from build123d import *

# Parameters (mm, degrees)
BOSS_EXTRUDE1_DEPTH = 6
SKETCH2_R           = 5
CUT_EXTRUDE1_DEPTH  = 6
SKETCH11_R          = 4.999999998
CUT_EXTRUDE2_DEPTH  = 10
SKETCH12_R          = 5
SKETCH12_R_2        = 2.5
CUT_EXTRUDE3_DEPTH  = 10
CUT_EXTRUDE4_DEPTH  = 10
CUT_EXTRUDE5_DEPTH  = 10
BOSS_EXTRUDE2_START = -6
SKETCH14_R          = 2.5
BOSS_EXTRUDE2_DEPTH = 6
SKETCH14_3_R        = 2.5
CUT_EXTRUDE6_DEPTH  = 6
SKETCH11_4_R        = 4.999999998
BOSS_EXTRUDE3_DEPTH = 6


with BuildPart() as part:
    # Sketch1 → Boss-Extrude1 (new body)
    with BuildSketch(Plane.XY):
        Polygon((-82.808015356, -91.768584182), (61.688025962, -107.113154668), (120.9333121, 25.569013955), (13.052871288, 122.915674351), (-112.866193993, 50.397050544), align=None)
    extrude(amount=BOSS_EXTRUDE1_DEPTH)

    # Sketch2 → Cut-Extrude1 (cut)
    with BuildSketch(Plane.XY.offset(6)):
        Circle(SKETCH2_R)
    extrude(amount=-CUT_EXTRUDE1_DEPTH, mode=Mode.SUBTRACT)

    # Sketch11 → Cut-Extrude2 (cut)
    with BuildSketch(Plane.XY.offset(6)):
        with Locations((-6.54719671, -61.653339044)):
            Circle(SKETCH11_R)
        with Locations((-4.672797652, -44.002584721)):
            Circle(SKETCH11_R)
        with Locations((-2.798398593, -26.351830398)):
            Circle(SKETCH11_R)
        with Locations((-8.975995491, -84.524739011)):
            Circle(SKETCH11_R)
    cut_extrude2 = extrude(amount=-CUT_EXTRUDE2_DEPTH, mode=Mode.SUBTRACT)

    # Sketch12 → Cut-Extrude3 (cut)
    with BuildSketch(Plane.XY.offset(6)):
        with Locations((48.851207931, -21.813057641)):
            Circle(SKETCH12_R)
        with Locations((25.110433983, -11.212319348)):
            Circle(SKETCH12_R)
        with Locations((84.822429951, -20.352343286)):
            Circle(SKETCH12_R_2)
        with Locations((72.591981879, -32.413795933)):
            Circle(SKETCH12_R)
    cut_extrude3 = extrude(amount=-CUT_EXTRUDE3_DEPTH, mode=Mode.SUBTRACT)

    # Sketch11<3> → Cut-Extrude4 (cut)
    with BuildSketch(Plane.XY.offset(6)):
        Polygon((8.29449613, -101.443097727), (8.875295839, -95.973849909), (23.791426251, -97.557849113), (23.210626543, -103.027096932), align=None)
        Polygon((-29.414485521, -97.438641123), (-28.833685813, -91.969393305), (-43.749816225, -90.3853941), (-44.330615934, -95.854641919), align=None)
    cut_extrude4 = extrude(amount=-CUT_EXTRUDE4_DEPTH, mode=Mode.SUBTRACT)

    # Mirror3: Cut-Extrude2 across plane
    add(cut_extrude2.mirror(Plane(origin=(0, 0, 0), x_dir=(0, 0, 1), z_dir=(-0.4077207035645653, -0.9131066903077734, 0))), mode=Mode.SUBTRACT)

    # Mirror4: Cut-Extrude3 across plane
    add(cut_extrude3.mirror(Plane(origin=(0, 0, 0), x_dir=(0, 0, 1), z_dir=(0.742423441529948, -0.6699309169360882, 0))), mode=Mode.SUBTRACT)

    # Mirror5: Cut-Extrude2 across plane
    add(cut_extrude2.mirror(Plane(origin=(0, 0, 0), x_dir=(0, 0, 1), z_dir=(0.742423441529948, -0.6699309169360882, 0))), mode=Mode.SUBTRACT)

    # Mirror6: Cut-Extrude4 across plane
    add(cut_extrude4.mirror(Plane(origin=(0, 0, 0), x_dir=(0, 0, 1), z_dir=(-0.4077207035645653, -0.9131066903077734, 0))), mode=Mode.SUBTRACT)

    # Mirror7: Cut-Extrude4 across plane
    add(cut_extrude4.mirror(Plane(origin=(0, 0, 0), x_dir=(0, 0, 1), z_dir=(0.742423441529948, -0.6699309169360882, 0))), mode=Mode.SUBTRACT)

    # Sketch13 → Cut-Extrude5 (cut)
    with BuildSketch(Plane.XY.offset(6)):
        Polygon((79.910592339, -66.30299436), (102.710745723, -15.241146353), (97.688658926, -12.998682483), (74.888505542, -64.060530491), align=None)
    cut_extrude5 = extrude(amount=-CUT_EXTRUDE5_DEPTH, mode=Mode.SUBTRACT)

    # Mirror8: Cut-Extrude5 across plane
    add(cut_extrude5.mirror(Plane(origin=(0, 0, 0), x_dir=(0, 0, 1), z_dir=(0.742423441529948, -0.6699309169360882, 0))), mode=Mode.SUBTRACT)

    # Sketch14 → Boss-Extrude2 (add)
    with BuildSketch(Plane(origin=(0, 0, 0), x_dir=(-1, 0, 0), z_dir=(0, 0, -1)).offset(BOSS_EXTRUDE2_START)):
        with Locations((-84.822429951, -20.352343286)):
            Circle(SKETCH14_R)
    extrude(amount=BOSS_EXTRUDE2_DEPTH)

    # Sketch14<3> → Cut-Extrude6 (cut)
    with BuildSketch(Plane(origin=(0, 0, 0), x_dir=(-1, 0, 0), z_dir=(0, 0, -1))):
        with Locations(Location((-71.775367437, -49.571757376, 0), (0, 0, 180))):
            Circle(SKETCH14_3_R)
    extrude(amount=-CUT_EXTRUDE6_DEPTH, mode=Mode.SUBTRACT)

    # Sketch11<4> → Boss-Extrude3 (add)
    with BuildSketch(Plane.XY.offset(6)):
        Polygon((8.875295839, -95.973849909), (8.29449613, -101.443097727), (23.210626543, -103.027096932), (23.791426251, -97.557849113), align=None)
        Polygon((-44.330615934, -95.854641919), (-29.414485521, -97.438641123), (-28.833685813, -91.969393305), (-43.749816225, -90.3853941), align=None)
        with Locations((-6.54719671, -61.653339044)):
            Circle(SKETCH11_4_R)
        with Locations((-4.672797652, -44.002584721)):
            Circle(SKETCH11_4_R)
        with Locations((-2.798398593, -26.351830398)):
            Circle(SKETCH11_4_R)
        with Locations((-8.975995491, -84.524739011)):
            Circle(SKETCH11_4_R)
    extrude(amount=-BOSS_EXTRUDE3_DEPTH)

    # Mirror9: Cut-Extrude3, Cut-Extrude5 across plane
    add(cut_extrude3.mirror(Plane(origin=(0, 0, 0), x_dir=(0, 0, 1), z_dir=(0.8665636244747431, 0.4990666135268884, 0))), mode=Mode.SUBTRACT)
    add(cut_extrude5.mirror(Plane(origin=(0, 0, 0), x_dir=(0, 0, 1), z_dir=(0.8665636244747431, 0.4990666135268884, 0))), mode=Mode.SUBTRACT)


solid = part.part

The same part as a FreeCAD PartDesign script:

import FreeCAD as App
import Part
import Sketcher

V = App.Vector

doc = App.newDocument("Part")
body = doc.addObject("PartDesign::Body", "Body")

# Sketch on XY plane
sketch1 = doc.addObject("Sketcher::SketchObject", "Sketch")
body.addObject(sketch1)
sketch1.AttachmentSupport = (doc.XY_Plane, [""])
sketch1.MapMode = "FlatFace"
sketch1.addGeometry([
    Part.LineSegment(V(-82.808015, -91.768584, 0), V(61.688026, -107.113155, 0)),  # 0
    Part.LineSegment(V(61.688026, -107.113155, 0), V(120.933312, 25.569014, 0)),  # 1
    Part.LineSegment(V(120.933312, 25.569014, 0), V(13.052871, 122.915674, 0)),  # 2
    Part.LineSegment(V(13.052871, 122.915674, 0), V(-112.866194, 50.397051, 0)),  # 3
    Part.LineSegment(V(-112.866194, 50.397051, 0), V(-82.808015, -91.768584, 0)),  # 4
], False)
sketch1.addConstraint([
    Sketcher.Constraint("Coincident", 0, 2, 1, 1),
    Sketcher.Constraint("Coincident", 1, 2, 2, 1),
    Sketcher.Constraint("Coincident", 2, 2, 3, 1),
    Sketcher.Constraint("Coincident", 3, 2, 4, 1),
    Sketcher.Constraint("Coincident", 4, 2, 0, 1),
    Sketcher.Constraint("Equal", 0, 1),
    Sketcher.Constraint("Equal", 1, 2),
    Sketcher.Constraint("Equal", 2, 3),
    Sketcher.Constraint("Equal", 3, 4),
    Sketcher.Constraint("DistanceY", 4, 2, 1, 2, 117.337598),
    Sketcher.Constraint("DistanceX", -1, 1, 2, 2, 13.052871),
    Sketcher.Constraint("DistanceY", -1, 1, 3, 2, 50.397051),
    Sketcher.Constraint("DistanceY", 0, 2, 1, 2, 132.682169),
    Sketcher.Constraint("DistanceX", 2, 2, 1, 2, 107.880441),
    Sketcher.Constraint("DistanceY", 1, 2, 2, 2, 97.34666),
])
pad1 = doc.addObject("PartDesign::Pad", "Pad")
body.addObject(pad1)
pad1.Profile = sketch1
pad1.Length = 6

# Sketch on XY plane
sketch2 = doc.addObject("Sketcher::SketchObject", "Sketch001")
body.addObject(sketch2)
sketch2.AttachmentSupport = (doc.XY_Plane, [""])
sketch2.MapMode = "FlatFace"
sketch2.AttachmentOffset = App.Placement(V(0, 0, 6), App.Rotation())
sketch2.addGeometry(Part.Circle(V(0, 0, 0), V(0, 0, 1), 5), False)
sketch2.addConstraint([
    Sketcher.Constraint("Coincident", 0, 3, -1, 1),
    Sketcher.Constraint("Diameter", 0, 10.0),
])
pocket1 = doc.addObject("PartDesign::Pocket", "Pocket")
body.addObject(pocket1)
pocket1.Profile = sketch2
pocket1.Length = 6

# Sketch on XY plane
sketch3 = doc.addObject("Sketcher::SketchObject", "Sketch002")
body.addObject(sketch3)
sketch3.AttachmentSupport = (doc.XY_Plane, [""])
sketch3.MapMode = "FlatFace"
sketch3.AttachmentOffset = App.Placement(V(0, 0, 6), App.Rotation())
sketch3.addGeometry([
    Part.Circle(V(-6.547197, -61.653339, 0), V(0, 0, 1), 5),
    Part.Circle(V(-4.672798, -44.002585, 0), V(0, 0, 1), 5),
    Part.Circle(V(-2.798399, -26.35183, 0), V(0, 0, 1), 5),
    Part.Circle(V(-8.975995, -84.524739, 0), V(0, 0, 1), 5),
], False)
sketch3.addConstraint([
    Sketcher.Constraint("Equal", 0, 1),
    Sketcher.Constraint("Equal", 1, 2),
    Sketcher.Constraint("Equal", 2, 3),
    Sketcher.Constraint("Diameter", 0, 10.0),
    Sketcher.Constraint("DistanceX", 2, 3, -1, 1, 2.798399),
    Sketcher.Constraint("DistanceX", 0, 3, 1, 3, 1.874399),
    Sketcher.Constraint("DistanceX", 1, 3, 2, 3, 1.874399),
    Sketcher.Constraint("DistanceX", 3, 3, 0, 3, 2.428799),
    Sketcher.Constraint("DistanceY", 3, 3, 0, 3, 22.8714),
    Sketcher.Constraint("DistanceY", 0, 3, -1, 1, 61.653339),
    Sketcher.Constraint("DistanceY", 2, 3, -1, 1, 26.35183),
    Sketcher.Constraint("DistanceY", 1, 3, -1, 1, 44.002585),
])
pocket2 = doc.addObject("PartDesign::Pocket", "Pocket001")
body.addObject(pocket2)
pocket2.Profile = sketch3
pocket2.Length = 10

# Sketch on XY plane
sketch4 = doc.addObject("Sketcher::SketchObject", "Sketch003")
body.addObject(sketch4)
sketch4.AttachmentSupport = (doc.XY_Plane, [""])
sketch4.MapMode = "FlatFace"
sketch4.AttachmentOffset = App.Placement(V(0, 0, 6), App.Rotation())
sketch4.addGeometry([
    Part.Circle(V(48.851208, -21.813058, 0), V(0, 0, 1), 5),
    Part.Circle(V(25.110434, -11.212319, 0), V(0, 0, 1), 5),
    Part.Circle(V(84.82243, -20.352343, 0), V(0, 0, 1), 2.5),
    Part.Circle(V(72.591982, -32.413796, 0), V(0, 0, 1), 5),
], False)
sketch4.addConstraint([
    Sketcher.Constraint("Equal", 0, 1),
    Sketcher.Constraint("Equal", 1, 3),
    Sketcher.Constraint("Diameter", 0, 10.0),
    Sketcher.Constraint("Diameter", 2, 5.0),
    Sketcher.Constraint("DistanceY", 1, 3, -1, 1, 11.212319),
    Sketcher.Constraint("DistanceX", -1, 1, 2, 3, 84.82243),
    Sketcher.Constraint("DistanceX", -1, 1, 3, 3, 72.591982),
    Sketcher.Constraint("DistanceY", 0, 3, 1, 3, 10.600738),
    Sketcher.Constraint("DistanceY", 3, 3, 0, 3, 10.600738),
    Sketcher.Constraint("DistanceX", -1, 1, 0, 3, 48.851208),
    Sketcher.Constraint("DistanceX", -1, 1, 1, 3, 25.110434),
    Sketcher.Constraint("DistanceY", 2, 3, -1, 1, 20.352343),
])
pocket3 = doc.addObject("PartDesign::Pocket", "Pocket002")
body.addObject(pocket3)
pocket3.Profile = sketch4
pocket3.Length = 10

# Sketch on XY plane
sketch5 = doc.addObject("Sketcher::SketchObject", "Sketch004")
body.addObject(sketch5)
sketch5.AttachmentSupport = (doc.XY_Plane, [""])
sketch5.MapMode = "FlatFace"
sketch5.AttachmentOffset = App.Placement(V(0, 0, 6), App.Rotation())
sketch5.addGeometry([
    Part.LineSegment(V(8.875296, -95.97385, 0), V(8.294496, -101.443098, 0)),  # 0
    Part.LineSegment(V(8.294496, -101.443098, 0), V(23.210627, -103.027097, 0)),  # 1
    Part.LineSegment(V(23.210627, -103.027097, 0), V(23.791426, -97.557849, 0)),  # 2
    Part.LineSegment(V(23.791426, -97.557849, 0), V(8.875296, -95.97385, 0)),  # 3
    Part.LineSegment(V(-29.414486, -97.438641, 0), V(-28.833686, -91.969393, 0)),  # 4
    Part.LineSegment(V(-28.833686, -91.969393, 0), V(-43.749816, -90.385394, 0)),  # 5
    Part.LineSegment(V(-43.749816, -90.385394, 0), V(-44.330616, -95.854642, 0)),  # 6
    Part.LineSegment(V(-44.330616, -95.854642, 0), V(-29.414486, -97.438641, 0)),  # 7
], False)
sketch5.addConstraint([
    Sketcher.Constraint("Coincident", 0, 2, 1, 1),
    Sketcher.Constraint("Coincident", 1, 2, 2, 1),
    Sketcher.Constraint("Coincident", 2, 2, 3, 1),
    Sketcher.Constraint("Coincident", 3, 2, 0, 1),
    Sketcher.Constraint("Coincident", 4, 2, 5, 1),
    Sketcher.Constraint("Coincident", 5, 2, 6, 1),
    Sketcher.Constraint("Coincident", 6, 2, 7, 1),
    Sketcher.Constraint("Coincident", 7, 2, 4, 1),
    Sketcher.Constraint("Perpendicular", 0, 1),
    Sketcher.Constraint("Perpendicular", 1, 2),
    Sketcher.Constraint("Perpendicular", 2, 3),
    Sketcher.Constraint("Perpendicular", 3, 4),
    Sketcher.Constraint("Perpendicular", 4, 5),
    Sketcher.Constraint("Perpendicular", 5, 6),
    Sketcher.Constraint("Perpendicular", 6, 7),
    Sketcher.Constraint("Equal", 2, 4),
    Sketcher.Constraint("Equal", 3, 5),
    Sketcher.Constraint("Distance", 1, 15.0),
    Sketcher.Constraint("Distance", 0, 5.5),
    Sketcher.Constraint("DistanceY", 1, 2, 0, 2, 1.583999),
    Sketcher.Constraint("DistanceY", 2, 2, -1, 1, 97.557849),
    Sketcher.Constraint("DistanceY", 6, 2, -1, 1, 95.854642),
    Sketcher.Constraint("DistanceX", 4, 2, 3, 2, 37.708982),
    Sketcher.Constraint("DistanceX", -1, 1, 0, 2, 8.294496),
])
pocket4 = doc.addObject("PartDesign::Pocket", "Pocket003")
body.addObject(pocket4)
pocket4.Profile = sketch5
pocket4.Length = 10
doc.recompute()

datumplane = doc.addObject("PartDesign::Plane", "DatumPlane")
body.addObject(datumplane)
datumplane.Placement = App.Placement(V(0, 0, 0), App.Rotation(V(-0.91310669, 0.407720704, 0), V(0, 0, -1), V(-0.407720704, -0.91310669, 0), "ZXY"))
mirrored = doc.addObject("PartDesign::Mirrored", "Mirrored")
body.addObject(mirrored)
mirrored.Originals = [pocket2]
mirrored.MirrorPlane = (datumplane, [""])
body.Tip = mirrored
doc.recompute()

datumplane2 = doc.addObject("PartDesign::Plane", "DatumPlane001")
body.addObject(datumplane2)
datumplane2.Placement = App.Placement(V(0, 0, 0), App.Rotation(V(-0.669930917, -0.742423442, 0), V(0, 0, -1), V(0.742423442, -0.669930917, 0), "ZXY"))
mirrored2 = doc.addObject("PartDesign::Mirrored", "Mirrored001")
body.addObject(mirrored2)
mirrored2.Originals = [pocket3]
mirrored2.MirrorPlane = (datumplane2, [""])
body.Tip = mirrored2
doc.recompute()

datumplane3 = doc.addObject("PartDesign::Plane", "DatumPlane002")
body.addObject(datumplane3)
datumplane3.Placement = App.Placement(V(0, 0, 0), App.Rotation(V(-0.669930917, -0.742423442, 0), V(0, 0, -1), V(0.742423442, -0.669930917, 0), "ZXY"))
mirrored3 = doc.addObject("PartDesign::Mirrored", "Mirrored002")
body.addObject(mirrored3)
mirrored3.Originals = [pocket2]
mirrored3.MirrorPlane = (datumplane3, [""])
body.Tip = mirrored3
doc.recompute()

datumplane4 = doc.addObject("PartDesign::Plane", "DatumPlane003")
body.addObject(datumplane4)
datumplane4.Placement = App.Placement(V(0, 0, 0), App.Rotation(V(-0.91310669, 0.407720704, 0), V(0, 0, -1), V(-0.407720704, -0.91310669, 0), "ZXY"))
mirrored4 = doc.addObject("PartDesign::Mirrored", "Mirrored003")
body.addObject(mirrored4)
mirrored4.Originals = [pocket4]
mirrored4.MirrorPlane = (datumplane4, [""])
body.Tip = mirrored4
doc.recompute()

datumplane5 = doc.addObject("PartDesign::Plane", "DatumPlane004")
body.addObject(datumplane5)
datumplane5.Placement = App.Placement(V(0, 0, 0), App.Rotation(V(-0.669930917, -0.742423442, 0), V(0, 0, -1), V(0.742423442, -0.669930917, 0), "ZXY"))
mirrored5 = doc.addObject("PartDesign::Mirrored", "Mirrored004")
body.addObject(mirrored5)
mirrored5.Originals = [pocket4]
mirrored5.MirrorPlane = (datumplane5, [""])
body.Tip = mirrored5

# Sketch on XY plane
sketch6 = doc.addObject("Sketcher::SketchObject", "Sketch005")
body.addObject(sketch6)
sketch6.AttachmentSupport = (doc.XY_Plane, [""])
sketch6.MapMode = "FlatFace"
sketch6.AttachmentOffset = App.Placement(V(0, 0, 6), App.Rotation())
sketch6.addGeometry([
    Part.LineSegment(V(79.910592, -66.302994, 0), V(102.710746, -15.241146, 0)),
    Part.LineSegment(V(102.710746, -15.241146, 0), V(97.688659, -12.998682, 0)),
    Part.LineSegment(V(97.688659, -12.998682, 0), V(74.888506, -64.06053, 0)),
    Part.LineSegment(V(74.888506, -64.06053, 0), V(79.910592, -66.302994, 0)),
], False)
sketch6.addConstraint([
    Sketcher.Constraint("Coincident", 0, 2, 1, 1),
    Sketcher.Constraint("Coincident", 1, 2, 2, 1),
    Sketcher.Constraint("Coincident", 2, 2, 3, 1),
    Sketcher.Constraint("Coincident", 3, 2, 0, 1),
    Sketcher.Constraint("Perpendicular", 0, 1),
    Sketcher.Constraint("Perpendicular", 1, 2),
    Sketcher.Constraint("Perpendicular", 2, 3),
    Sketcher.Constraint("Distance", 1, 5.5),
    Sketcher.Constraint("Distance", 0, 55.92101),
    Sketcher.Constraint("DistanceX", -1, 1, 1, 2, 97.688659),
    Sketcher.Constraint("DistanceY", 2, 2, -1, 1, 64.06053),
    Sketcher.Constraint("DistanceY", 2, 2, 1, 2, 51.061848),
])
pocket5 = doc.addObject("PartDesign::Pocket", "Pocket004")
body.addObject(pocket5)
pocket5.Profile = sketch6
pocket5.Length = 10
doc.recompute()

datumplane6 = doc.addObject("PartDesign::Plane", "DatumPlane005")
body.addObject(datumplane6)
datumplane6.Placement = App.Placement(V(0, 0, 0), App.Rotation(V(-0.669930917, -0.742423442, 0), V(0, 0, -1), V(0.742423442, -0.669930917, 0), "ZXY"))
mirrored6 = doc.addObject("PartDesign::Mirrored", "Mirrored005")
body.addObject(mirrored6)
mirrored6.Originals = [pocket5]
mirrored6.MirrorPlane = (datumplane6, [""])
body.Tip = mirrored6

# Sketch on XY plane
sketch7 = doc.addObject("Sketcher::SketchObject", "Sketch006")
body.addObject(sketch7)
sketch7.AttachmentSupport = (doc.XY_Plane, [""])
sketch7.MapMode = "FlatFace"
sketch7.AttachmentOffset = App.Placement(V(0, 0, 6), App.Rotation())
sketch7.addGeometry(Part.Circle(V(84.82243, -20.352343, 0), V(0, 0, 1), 2.5), False)
sketch7.addConstraint([
    Sketcher.Constraint("Diameter", 0, 5.0),
    Sketcher.Constraint("DistanceX", -1, 1, 0, 3, 84.82243),
    Sketcher.Constraint("DistanceY", 0, 3, -1, 1, 20.352343),
])
pad2 = doc.addObject("PartDesign::Pad", "Pad001")
body.addObject(pad2)
pad2.Profile = sketch7
pad2.Length = 6
pad2.Reversed = True

# Sketch on XY plane
sketch8 = doc.addObject("Sketcher::SketchObject", "Sketch007")
body.addObject(sketch8)
sketch8.AttachmentSupport = (doc.XY_Plane, [""])
sketch8.MapMode = "FlatFace"
sketch8.addGeometry(Part.Circle(V(71.775367, -49.571757, 0), V(0, 0, 1), 2.5), False)
sketch8.addConstraint([
    Sketcher.Constraint("Diameter", 0, 5.0),
    Sketcher.Constraint("DistanceX", -1, 1, 0, 3, 71.775367),
    Sketcher.Constraint("DistanceY", 0, 3, -1, 1, 49.571757),
])
pocket6 = doc.addObject("PartDesign::Pocket", "Pocket005")
body.addObject(pocket6)
pocket6.Profile = sketch8
pocket6.Length = 6
pocket6.Reversed = True

# Sketch on XY plane
sketch9 = doc.addObject("Sketcher::SketchObject", "Sketch008")
body.addObject(sketch9)
sketch9.AttachmentSupport = (doc.XY_Plane, [""])
sketch9.MapMode = "FlatFace"
sketch9.AttachmentOffset = App.Placement(V(0, 0, 6), App.Rotation())
sketch9.addGeometry([
    Part.LineSegment(V(8.875296, -95.97385, 0), V(8.294496, -101.443098, 0)),  # 0
    Part.LineSegment(V(8.294496, -101.443098, 0), V(23.210627, -103.027097, 0)),  # 1
    Part.LineSegment(V(23.210627, -103.027097, 0), V(23.791426, -97.557849, 0)),  # 2
    Part.LineSegment(V(23.791426, -97.557849, 0), V(8.875296, -95.97385, 0)),  # 3
    Part.LineSegment(V(-44.330616, -95.854642, 0), V(-29.414486, -97.438641, 0)),  # 4
    Part.LineSegment(V(-29.414486, -97.438641, 0), V(-28.833686, -91.969393, 0)),  # 5
    Part.LineSegment(V(-28.833686, -91.969393, 0), V(-43.749816, -90.385394, 0)),  # 6
    Part.LineSegment(V(-43.749816, -90.385394, 0), V(-44.330616, -95.854642, 0)),  # 7
    Part.Circle(V(-6.547197, -61.653339, 0), V(0, 0, 1), 5),  # 8
    Part.Circle(V(-4.672798, -44.002585, 0), V(0, 0, 1), 5),  # 9
    Part.Circle(V(-2.798399, -26.35183, 0), V(0, 0, 1), 5),  # 10
    Part.Circle(V(-8.975995, -84.524739, 0), V(0, 0, 1), 5),  # 11
], False)
sketch9.addConstraint([
    Sketcher.Constraint("Coincident", 0, 2, 1, 1),
    Sketcher.Constraint("Coincident", 1, 2, 2, 1),
    Sketcher.Constraint("Coincident", 2, 2, 3, 1),
    Sketcher.Constraint("Coincident", 3, 2, 0, 1),
    Sketcher.Constraint("Coincident", 4, 2, 5, 1),
    Sketcher.Constraint("Coincident", 5, 2, 6, 1),
    Sketcher.Constraint("Coincident", 6, 2, 7, 1),
    Sketcher.Constraint("Coincident", 7, 2, 4, 1),
    Sketcher.Constraint("Equal", 8, 9),
    Sketcher.Constraint("Equal", 9, 10),
    Sketcher.Constraint("Equal", 10, 11),
    Sketcher.Constraint("Perpendicular", 0, 1),
    Sketcher.Constraint("Perpendicular", 1, 2),
    Sketcher.Constraint("Perpendicular", 2, 3),
    Sketcher.Constraint("Parallel", 3, 4),
    Sketcher.Constraint("Perpendicular", 4, 5),
    Sketcher.Constraint("Perpendicular", 5, 6),
    Sketcher.Constraint("Perpendicular", 6, 7),
    Sketcher.Constraint("Equal", 3, 4),
    Sketcher.Constraint("Equal", 2, 5),
    Sketcher.Constraint("Diameter", 8, 10.0),
    Sketcher.Constraint("Distance", 1, 15.0),
    Sketcher.Constraint("Distance", 0, 5.5),
    Sketcher.Constraint("DistanceY", 1, 2, 0, 2, 1.583999),
    Sketcher.Constraint("DistanceX", 10, 3, -1, 1, 2.798399),
    Sketcher.Constraint("DistanceX", 8, 3, 9, 3, 1.874399),
    Sketcher.Constraint("DistanceX", 9, 3, 10, 3, 1.874399),
    Sketcher.Constraint("DistanceX", 11, 3, 8, 3, 2.428799),
    Sketcher.Constraint("DistanceY", 11, 3, 8, 3, 22.8714),
    Sketcher.Constraint("DistanceY", 8, 3, -1, 1, 61.653339),
    Sketcher.Constraint("DistanceY", 10, 3, -1, 1, 26.35183),
    Sketcher.Constraint("DistanceY", 2, 2, -1, 1, 97.557849),
    Sketcher.Constraint("DistanceY", 4, 2, -1, 1, 97.438641),
    Sketcher.Constraint("DistanceX", 11, 3, 0, 2, 17.270492),
    Sketcher.Constraint("DistanceX", 4, 2, 11, 3, 20.43849),
    Sketcher.Constraint("DistanceY", 9, 3, -1, 1, 44.002585),
])
pad3 = doc.addObject("PartDesign::Pad", "Pad002")
body.addObject(pad3)
pad3.Profile = sketch9
pad3.Length = 6
pad3.Reversed = True
doc.recompute()

datumplane7 = doc.addObject("PartDesign::Plane", "DatumPlane006")
body.addObject(datumplane7)
datumplane7.Placement = App.Placement(V(0, 0, 0), App.Rotation(V(0.499066614, -0.866563624, 0), V(0, 0, -1), V(0.866563624, 0.499066614, 0), "ZXY"))
mirrored7 = doc.addObject("PartDesign::Mirrored", "Mirrored006")
body.addObject(mirrored7)
mirrored7.Originals = [pocket3, pocket5]
mirrored7.MirrorPlane = (datumplane7, [""])
body.Tip = mirrored7

doc.recompute()
